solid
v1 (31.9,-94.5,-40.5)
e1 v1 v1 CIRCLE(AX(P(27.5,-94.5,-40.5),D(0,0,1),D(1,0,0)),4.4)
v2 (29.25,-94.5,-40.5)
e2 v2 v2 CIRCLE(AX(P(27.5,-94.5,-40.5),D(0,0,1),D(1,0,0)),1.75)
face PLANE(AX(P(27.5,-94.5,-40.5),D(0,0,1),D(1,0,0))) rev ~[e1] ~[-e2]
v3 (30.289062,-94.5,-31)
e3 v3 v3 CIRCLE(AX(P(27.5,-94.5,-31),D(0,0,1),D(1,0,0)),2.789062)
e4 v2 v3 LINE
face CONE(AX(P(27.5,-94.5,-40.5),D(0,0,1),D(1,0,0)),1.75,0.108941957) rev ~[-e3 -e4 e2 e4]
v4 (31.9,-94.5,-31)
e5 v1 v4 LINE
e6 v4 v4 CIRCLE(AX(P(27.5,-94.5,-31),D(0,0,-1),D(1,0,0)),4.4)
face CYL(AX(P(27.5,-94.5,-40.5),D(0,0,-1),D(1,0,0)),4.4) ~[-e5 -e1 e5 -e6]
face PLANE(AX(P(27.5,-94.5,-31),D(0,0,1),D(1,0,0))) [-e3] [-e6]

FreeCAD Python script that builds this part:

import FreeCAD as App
import Part
import Sketcher
Q = App.Units.Quantity

doc = App.newDocument("Part")
body = doc.addObject("PartDesign::Body", "Body")

# Sketch on XY plane
sketch1 = body.newObject("Sketcher::SketchObject", "Sketch")
sketch1.AttachmentSupport = (doc.getObject("XY_Plane"), [""])
sketch1.MapMode = "FlatFace"
sketch1.AttachmentOffset = App.Placement(App.Vector(0, 0, -31), App.Rotation())
sketch1.addGeometry([
    Part.LineSegment(App.Vector(22, -90, 0), App.Vector(22, -100, 0)),
    Part.LineSegment(App.Vector(22, -100, 0), App.Vector(32, -100, 0)),
    Part.LineSegment(App.Vector(32, -100, 0), App.Vector(32, -90, 0)),
    Part.LineSegment(App.Vector(32, -90, 0), App.Vector(22, -90, 0)),
], False)
sketch1.addConstraint([
    Sketcher.Constraint("Coincident", 0, 2, 1, 1),
    Sketcher.Constraint("Coincident", 1, 2, 2, 1),
    Sketcher.Constraint("Coincident", 2, 2, 3, 1),
    Sketcher.Constraint("Coincident", 3, 2, 0, 1),
    Sketcher.Constraint("Vertical", 0),
    Sketcher.Constraint("Horizontal", 1),
    Sketcher.Constraint("Vertical", 2),
    Sketcher.Constraint("Horizontal", 3),
    Sketcher.Constraint("Equal", 3, 0),
    Sketcher.Constraint("DistanceX", 1, 1, 1, 2, Q("10 mm")),
    Sketcher.Constraint("DistanceX", -1, 1, 0, 2, Q("22.5 mm")),
    Sketcher.Constraint("DistanceY", 0, 2, -1, 1, Q("99.5 mm")),
])
pad1 = body.newObject("PartDesign::Pad", "Pad")
pad1.Profile = sketch1
pad1.Length = 6.5
body2 = doc.addObject("PartDesign::Body", "Body001")

# Sketch on XZ plane
sketch2 = body2.newObject("Sketcher::SketchObject", "Sketch001")
sketch2.AttachmentSupport = (doc.getObject("XZ_Plane001"), [""])
sketch2.MapMode = "FlatFace"
sketch2.AttachmentOffset = App.Placement(App.Vector(0, 0, 94.5), App.Rotation())
sketch2.addGeometry([
    Part.LineSegment(App.Vector(27.5, 71, 0), App.Vector(29.2, 71, 0)),
    Part.LineSegment(App.Vector(29.2, 71, 0), App.Vector(31, 87, 0)),
    Part.LineSegment(App.Vector(31, 87, 0), App.Vector(27.5, 87, 0)),
    Part.LineSegment(App.Vector(27.5, 87, 0), App.Vector(27.5, 71, 0)),
], False)
sketch2.addGeometry(Part.LineSegment(App.Vector(27.5, 71, 0), App.Vector(27.5, 87, 0)), True)  # axis
sketch2.addConstraint([
    Sketcher.Constraint("Coincident", 0, 2, 1, 1),
    Sketcher.Constraint("Coincident", 1, 2, 2, 1),
    Sketcher.Constraint("Coincident", 2, 2, 3, 1),
    Sketcher.Constraint("Coincident", 3, 2, 0, 1),
    Sketcher.Constraint("Horizontal", 0),
    Sketcher.Constraint("Horizontal", 2),
    Sketcher.Constraint("Vertical", 3),
    Sketcher.Constraint("Vertical", 4),
    Sketcher.Constraint("Coincident", 4, 1, 3, 2),
    Sketcher.Constraint("Horizontal", 1, 2, 4, 2),
    Sketcher.Constraint("DistanceY", 3, 2, 3, 1, Q("16 mm")),
    Sketcher.Constraint("DistanceX", 2, 2, 2, 1, Q("3.5 mm")),
    Sketcher.Constraint("DistanceY", -1, 1, 0, 2, Q("71 mm")),
    Sketcher.Constraint("DistanceX", -1, 1, 1, 2, Q("31 mm")),
    Sketcher.Constraint("DistanceX", 0, 1, 0, 2, Q("1.75 mm")),
])
revolution = body2.newObject("PartDesign::Revolution", "Revolution")
revolution.Profile = sketch2
revolution.ReferenceAxis = (sketch2, ["Axis0"])
revolution.Angle = 360
body3 = doc.addObject("PartDesign::Body", "Body002")

# Sketch on XY plane
sketch3 = body3.newObject("Sketcher::SketchObject", "Sketch002")
sketch3.AttachmentSupport = (doc.getObject("XY_Plane002"), [""])
sketch3.MapMode = "FlatFace"
sketch3.AttachmentOffset = App.Placement(App.Vector(0, 0, 71), App.Rotation())
sketch3.addGeometry(Part.Circle(App.Vector(27.5, -94.5, 0), App.Vector(0, 0, 1), 4.4), False)
sketch3.addConstraint([
    Sketcher.Constraint("Diameter", 0, Q("8.8 mm")),
    Sketcher.Constraint("DistanceX", -1, 1, 0, 3, Q("27.5 mm")),
    Sketcher.Constraint("DistanceY", 0, 3, -1, 1, Q("94.5 mm")),
])
pad2 = body3.newObject("PartDesign::Pad", "Pad001")
pad2.Profile = sketch3
pad2.Length = 16
doc.recompute()

boolean = body3.newObject("PartDesign::Boolean", "Boolean")
boolean.Type = "Cut"
boolean.addObjects([body2])
body4 = doc.addObject("PartDesign::Body", "Body003")
doc.recompute()

body3.Placement = App.Placement(App.Vector(0, 0, -111.5), App.Rotation(App.Vector(0, 0, 1), 0))
boolean2 = body4.newObject("PartDesign::Boolean", "Boolean001")
boolean2.Type = "Fuse"
boolean2.addObjects([body3])
doc.recompute()

boolean3 = body4.newObject("PartDesign::Boolean", "Boolean002")
boolean3.Type = "Cut"
boolean3.addObjects([body])

doc.recompute()
